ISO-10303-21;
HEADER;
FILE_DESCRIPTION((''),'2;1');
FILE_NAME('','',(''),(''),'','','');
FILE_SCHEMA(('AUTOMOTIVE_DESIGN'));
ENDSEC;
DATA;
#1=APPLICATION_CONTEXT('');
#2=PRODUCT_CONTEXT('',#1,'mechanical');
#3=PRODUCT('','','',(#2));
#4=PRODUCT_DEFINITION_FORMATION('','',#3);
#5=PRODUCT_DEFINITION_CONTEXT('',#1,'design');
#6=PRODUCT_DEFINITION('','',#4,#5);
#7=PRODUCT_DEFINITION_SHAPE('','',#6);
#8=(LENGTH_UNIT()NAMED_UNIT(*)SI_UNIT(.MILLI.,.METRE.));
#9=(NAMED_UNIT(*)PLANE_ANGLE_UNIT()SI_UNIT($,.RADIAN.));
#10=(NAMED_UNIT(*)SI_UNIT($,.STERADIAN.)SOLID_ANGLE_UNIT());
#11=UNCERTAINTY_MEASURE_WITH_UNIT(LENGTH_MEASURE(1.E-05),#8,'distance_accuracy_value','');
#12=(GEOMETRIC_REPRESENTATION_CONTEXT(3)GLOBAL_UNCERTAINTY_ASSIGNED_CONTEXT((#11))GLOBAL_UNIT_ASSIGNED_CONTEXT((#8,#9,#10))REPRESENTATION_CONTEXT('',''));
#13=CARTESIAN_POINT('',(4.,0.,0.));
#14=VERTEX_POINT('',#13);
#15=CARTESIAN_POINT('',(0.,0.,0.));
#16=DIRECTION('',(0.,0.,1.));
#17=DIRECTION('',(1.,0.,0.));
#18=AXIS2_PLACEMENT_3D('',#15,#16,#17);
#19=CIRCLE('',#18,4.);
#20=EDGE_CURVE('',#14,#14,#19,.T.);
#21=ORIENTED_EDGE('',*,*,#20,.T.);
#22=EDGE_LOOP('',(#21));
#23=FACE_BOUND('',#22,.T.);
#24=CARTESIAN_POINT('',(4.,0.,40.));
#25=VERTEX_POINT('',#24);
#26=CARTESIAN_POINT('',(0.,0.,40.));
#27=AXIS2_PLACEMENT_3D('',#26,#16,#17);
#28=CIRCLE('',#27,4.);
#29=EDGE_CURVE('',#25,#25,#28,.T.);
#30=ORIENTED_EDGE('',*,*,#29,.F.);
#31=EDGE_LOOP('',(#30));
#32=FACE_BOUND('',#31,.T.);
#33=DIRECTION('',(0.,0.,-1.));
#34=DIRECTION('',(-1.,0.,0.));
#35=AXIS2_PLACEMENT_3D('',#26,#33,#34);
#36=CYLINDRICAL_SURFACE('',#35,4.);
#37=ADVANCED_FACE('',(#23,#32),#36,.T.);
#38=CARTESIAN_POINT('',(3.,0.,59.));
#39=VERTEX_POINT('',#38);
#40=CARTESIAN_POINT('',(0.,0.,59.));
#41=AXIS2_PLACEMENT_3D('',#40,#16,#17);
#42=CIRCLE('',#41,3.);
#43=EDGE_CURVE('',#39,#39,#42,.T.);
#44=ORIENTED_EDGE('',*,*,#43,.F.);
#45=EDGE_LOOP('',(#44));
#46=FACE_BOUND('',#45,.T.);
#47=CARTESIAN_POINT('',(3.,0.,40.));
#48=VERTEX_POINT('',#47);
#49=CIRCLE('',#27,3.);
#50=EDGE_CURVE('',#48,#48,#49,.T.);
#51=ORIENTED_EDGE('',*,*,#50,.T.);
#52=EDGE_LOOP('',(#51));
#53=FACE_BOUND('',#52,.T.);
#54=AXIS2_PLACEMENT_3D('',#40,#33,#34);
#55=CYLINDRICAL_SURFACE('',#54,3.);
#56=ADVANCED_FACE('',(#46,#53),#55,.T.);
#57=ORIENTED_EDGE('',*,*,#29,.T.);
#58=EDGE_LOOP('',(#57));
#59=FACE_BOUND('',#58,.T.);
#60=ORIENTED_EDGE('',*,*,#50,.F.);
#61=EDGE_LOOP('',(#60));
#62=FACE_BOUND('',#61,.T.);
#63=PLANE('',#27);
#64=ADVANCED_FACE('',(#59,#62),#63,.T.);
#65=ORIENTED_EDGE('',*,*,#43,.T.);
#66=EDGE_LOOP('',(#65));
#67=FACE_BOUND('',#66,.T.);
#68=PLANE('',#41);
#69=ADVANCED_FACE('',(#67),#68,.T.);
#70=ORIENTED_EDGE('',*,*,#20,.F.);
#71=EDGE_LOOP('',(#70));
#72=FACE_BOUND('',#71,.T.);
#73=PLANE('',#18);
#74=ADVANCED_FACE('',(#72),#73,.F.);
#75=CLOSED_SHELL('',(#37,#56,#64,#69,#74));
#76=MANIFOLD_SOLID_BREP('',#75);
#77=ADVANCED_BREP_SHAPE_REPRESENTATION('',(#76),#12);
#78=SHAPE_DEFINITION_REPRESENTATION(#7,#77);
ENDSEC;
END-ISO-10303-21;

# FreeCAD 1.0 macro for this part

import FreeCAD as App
import Part
import Sketcher
Q = App.Units.Quantity

doc = App.newDocument("Part")
body = doc.addObject("PartDesign::Body", "Body")

# Sketch on XY plane
sketch1 = body.newObject("Sketcher::SketchObject", "Sketch")
sketch1.AttachmentSupport = (doc.getObject("XY_Plane"), [""])
sketch1.MapMode = "FlatFace"
sketch1.addGeometry(Part.Circle(App.Vector(0, 0, 0), App.Vector(0, 0, 1), 4), False)
sketch1.addConstraint(Sketcher.Constraint("Coincident", 0, 3, -1, 1))
sketch1.addConstraint(Sketcher.Constraint("Diameter", 0, Q("8 mm")))
pad1 = body.newObject("PartDesign::Pad", "Pad")
pad1.Profile = sketch1
pad1.Length = 40

# Sketch on XY plane
sketch2 = body.newObject("Sketcher::SketchObject", "Sketch001")
sketch2.AttachmentSupport = (doc.getObject("XY_Plane"), [""])
sketch2.MapMode = "FlatFace"
sketch2.AttachmentOffset = App.Placement(App.Vector(0, 0, 40), App.Rotation())
sketch2.addGeometry(Part.Circle(App.Vector(0, 0, 0), App.Vector(0, 0, 1), 3), False)
sketch2.addConstraint(Sketcher.Constraint("Coincident", 0, 3, -1, 1))
sketch2.addConstraint(Sketcher.Constraint("Diameter", 0, Q("6 mm")))
pad2 = body.newObject("PartDesign::Pad", "Pad001")
pad2.Profile = sketch2
pad2.Length = 19

doc.recompute()
